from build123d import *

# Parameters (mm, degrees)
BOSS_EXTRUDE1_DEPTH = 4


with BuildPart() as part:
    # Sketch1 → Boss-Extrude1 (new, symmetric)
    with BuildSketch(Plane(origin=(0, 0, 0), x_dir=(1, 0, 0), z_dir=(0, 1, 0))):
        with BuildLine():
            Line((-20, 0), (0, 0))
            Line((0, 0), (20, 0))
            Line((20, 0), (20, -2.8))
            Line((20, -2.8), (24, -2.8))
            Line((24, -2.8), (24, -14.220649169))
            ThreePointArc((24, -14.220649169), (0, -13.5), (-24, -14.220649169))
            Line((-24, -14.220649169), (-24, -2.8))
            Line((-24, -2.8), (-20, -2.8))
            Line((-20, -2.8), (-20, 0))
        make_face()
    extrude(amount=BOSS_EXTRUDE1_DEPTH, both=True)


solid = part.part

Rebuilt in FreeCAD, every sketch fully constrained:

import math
import FreeCAD as App
import Part
import Sketcher
from FreeCAD import Vector
Q = App.Units.Quantity

doc = App.newDocument("Part")
body = doc.addObject("PartDesign::Body", "Body")

# Sketch on XZ plane
sketch1 = doc.addObject("Sketcher::SketchObject", "Sketch")
body.addObject(sketch1)
sketch1.AttachmentSupport = (doc.XZ_Plane, [""])
sketch1.MapMode = "FlatFace"
sketch1.addGeometry(Part.LineSegment(Vector(20, 0, 0), Vector(-20, 0, 0)), False)
sketch1.addGeometry(Part.LineSegment(Vector(-20, 0, 0), Vector(-20, 2.8, 0)), False)
sketch1.addGeometry(Part.LineSegment(Vector(-20, 2.8, 0), Vector(-24, 2.8, 0)), False)
sketch1.addGeometry(Part.LineSegment(Vector(-24, 2.8, 0), Vector(-24, 14.2, 0)), False)
sketch1.addGeometry(Part.ArcOfCircle(Part.Circle(Vector(0, 413.5, 0), Vector(0, 0, 1), 400), math.radians(-93.44), math.radians(-86.56)), False)
sketch1.addGeometry(Part.LineSegment(Vector(24, 14.2, 0), Vector(24, 2.8, 0)), False)
sketch1.addGeometry(Part.LineSegment(Vector(24, 2.8, 0), Vector(20, 2.8, 0)), False)
sketch1.addGeometry(Part.LineSegment(Vector(20, 2.8, 0), Vector(20, 0, 0)), False)
sketch1.addConstraint(Sketcher.Constraint("Coincident", 0, 2, 1, 1))
sketch1.addConstraint(Sketcher.Constraint("Coincident", 1, 2, 2, 1))
sketch1.addConstraint(Sketcher.Constraint("Coincident", 2, 2, 3, 1))
sketch1.addConstraint(Sketcher.Constraint("Coincident", 3, 2, 4, 1))
sketch1.addConstraint(Sketcher.Constraint("Coincident", 4, 2, 5, 1))
sketch1.addConstraint(Sketcher.Constraint("Coincident", 5, 2, 6, 1))
sketch1.addConstraint(Sketcher.Constraint("Coincident", 6, 2, 7, 1))
sketch1.addConstraint(Sketcher.Constraint("Coincident", 7, 2, 0, 1))
sketch1.addConstraint(Sketcher.Constraint("Horizontal", 0))
sketch1.addConstraint(Sketcher.Constraint("Vertical", 1))
sketch1.addConstraint(Sketcher.Constraint("Horizontal", 2))
sketch1.addConstraint(Sketcher.Constraint("Vertical", 3))
sketch1.addConstraint(Sketcher.Constraint("Vertical", 5))
sketch1.addConstraint(Sketcher.Constraint("Horizontal", 6))
sketch1.addConstraint(Sketcher.Constraint("Vertical", 7))
sketch1.addConstraint(Sketcher.Constraint("Symmetric", 0, 2, 7, 2, -1, 1))
sketch1.addConstraint(Sketcher.Constraint("Symmetric", 3, 2, 4, 2, -2))
sketch1.addConstraint(Sketcher.Constraint("Horizontal", 2, 2, 5, 2))
sketch1.addConstraint(Sketcher.Constraint("Radius", 4, Q("400 mm")))
sketch1.addConstraint(Sketcher.Constraint("DistanceX", 0, 2, 0, 1, Q("40 mm")))
sketch1.addConstraint(Sketcher.Constraint("DistanceX", 2, 2, 2, 1, Q("4 mm")))
sketch1.addConstraint(Sketcher.Constraint("DistanceY", 1, 1, 1, 2, Q("2.8 mm")))
sketch1.addConstraint(Sketcher.Constraint("DistanceY", -1, 1, 4, 3, Q("413.5 mm")))
pad1 = doc.addObject("PartDesign::Pad", "Pad")
body.addObject(pad1)
pad1.Profile = sketch1
pad1.Length = 8
pad1.Midplane = True

doc.recompute()
